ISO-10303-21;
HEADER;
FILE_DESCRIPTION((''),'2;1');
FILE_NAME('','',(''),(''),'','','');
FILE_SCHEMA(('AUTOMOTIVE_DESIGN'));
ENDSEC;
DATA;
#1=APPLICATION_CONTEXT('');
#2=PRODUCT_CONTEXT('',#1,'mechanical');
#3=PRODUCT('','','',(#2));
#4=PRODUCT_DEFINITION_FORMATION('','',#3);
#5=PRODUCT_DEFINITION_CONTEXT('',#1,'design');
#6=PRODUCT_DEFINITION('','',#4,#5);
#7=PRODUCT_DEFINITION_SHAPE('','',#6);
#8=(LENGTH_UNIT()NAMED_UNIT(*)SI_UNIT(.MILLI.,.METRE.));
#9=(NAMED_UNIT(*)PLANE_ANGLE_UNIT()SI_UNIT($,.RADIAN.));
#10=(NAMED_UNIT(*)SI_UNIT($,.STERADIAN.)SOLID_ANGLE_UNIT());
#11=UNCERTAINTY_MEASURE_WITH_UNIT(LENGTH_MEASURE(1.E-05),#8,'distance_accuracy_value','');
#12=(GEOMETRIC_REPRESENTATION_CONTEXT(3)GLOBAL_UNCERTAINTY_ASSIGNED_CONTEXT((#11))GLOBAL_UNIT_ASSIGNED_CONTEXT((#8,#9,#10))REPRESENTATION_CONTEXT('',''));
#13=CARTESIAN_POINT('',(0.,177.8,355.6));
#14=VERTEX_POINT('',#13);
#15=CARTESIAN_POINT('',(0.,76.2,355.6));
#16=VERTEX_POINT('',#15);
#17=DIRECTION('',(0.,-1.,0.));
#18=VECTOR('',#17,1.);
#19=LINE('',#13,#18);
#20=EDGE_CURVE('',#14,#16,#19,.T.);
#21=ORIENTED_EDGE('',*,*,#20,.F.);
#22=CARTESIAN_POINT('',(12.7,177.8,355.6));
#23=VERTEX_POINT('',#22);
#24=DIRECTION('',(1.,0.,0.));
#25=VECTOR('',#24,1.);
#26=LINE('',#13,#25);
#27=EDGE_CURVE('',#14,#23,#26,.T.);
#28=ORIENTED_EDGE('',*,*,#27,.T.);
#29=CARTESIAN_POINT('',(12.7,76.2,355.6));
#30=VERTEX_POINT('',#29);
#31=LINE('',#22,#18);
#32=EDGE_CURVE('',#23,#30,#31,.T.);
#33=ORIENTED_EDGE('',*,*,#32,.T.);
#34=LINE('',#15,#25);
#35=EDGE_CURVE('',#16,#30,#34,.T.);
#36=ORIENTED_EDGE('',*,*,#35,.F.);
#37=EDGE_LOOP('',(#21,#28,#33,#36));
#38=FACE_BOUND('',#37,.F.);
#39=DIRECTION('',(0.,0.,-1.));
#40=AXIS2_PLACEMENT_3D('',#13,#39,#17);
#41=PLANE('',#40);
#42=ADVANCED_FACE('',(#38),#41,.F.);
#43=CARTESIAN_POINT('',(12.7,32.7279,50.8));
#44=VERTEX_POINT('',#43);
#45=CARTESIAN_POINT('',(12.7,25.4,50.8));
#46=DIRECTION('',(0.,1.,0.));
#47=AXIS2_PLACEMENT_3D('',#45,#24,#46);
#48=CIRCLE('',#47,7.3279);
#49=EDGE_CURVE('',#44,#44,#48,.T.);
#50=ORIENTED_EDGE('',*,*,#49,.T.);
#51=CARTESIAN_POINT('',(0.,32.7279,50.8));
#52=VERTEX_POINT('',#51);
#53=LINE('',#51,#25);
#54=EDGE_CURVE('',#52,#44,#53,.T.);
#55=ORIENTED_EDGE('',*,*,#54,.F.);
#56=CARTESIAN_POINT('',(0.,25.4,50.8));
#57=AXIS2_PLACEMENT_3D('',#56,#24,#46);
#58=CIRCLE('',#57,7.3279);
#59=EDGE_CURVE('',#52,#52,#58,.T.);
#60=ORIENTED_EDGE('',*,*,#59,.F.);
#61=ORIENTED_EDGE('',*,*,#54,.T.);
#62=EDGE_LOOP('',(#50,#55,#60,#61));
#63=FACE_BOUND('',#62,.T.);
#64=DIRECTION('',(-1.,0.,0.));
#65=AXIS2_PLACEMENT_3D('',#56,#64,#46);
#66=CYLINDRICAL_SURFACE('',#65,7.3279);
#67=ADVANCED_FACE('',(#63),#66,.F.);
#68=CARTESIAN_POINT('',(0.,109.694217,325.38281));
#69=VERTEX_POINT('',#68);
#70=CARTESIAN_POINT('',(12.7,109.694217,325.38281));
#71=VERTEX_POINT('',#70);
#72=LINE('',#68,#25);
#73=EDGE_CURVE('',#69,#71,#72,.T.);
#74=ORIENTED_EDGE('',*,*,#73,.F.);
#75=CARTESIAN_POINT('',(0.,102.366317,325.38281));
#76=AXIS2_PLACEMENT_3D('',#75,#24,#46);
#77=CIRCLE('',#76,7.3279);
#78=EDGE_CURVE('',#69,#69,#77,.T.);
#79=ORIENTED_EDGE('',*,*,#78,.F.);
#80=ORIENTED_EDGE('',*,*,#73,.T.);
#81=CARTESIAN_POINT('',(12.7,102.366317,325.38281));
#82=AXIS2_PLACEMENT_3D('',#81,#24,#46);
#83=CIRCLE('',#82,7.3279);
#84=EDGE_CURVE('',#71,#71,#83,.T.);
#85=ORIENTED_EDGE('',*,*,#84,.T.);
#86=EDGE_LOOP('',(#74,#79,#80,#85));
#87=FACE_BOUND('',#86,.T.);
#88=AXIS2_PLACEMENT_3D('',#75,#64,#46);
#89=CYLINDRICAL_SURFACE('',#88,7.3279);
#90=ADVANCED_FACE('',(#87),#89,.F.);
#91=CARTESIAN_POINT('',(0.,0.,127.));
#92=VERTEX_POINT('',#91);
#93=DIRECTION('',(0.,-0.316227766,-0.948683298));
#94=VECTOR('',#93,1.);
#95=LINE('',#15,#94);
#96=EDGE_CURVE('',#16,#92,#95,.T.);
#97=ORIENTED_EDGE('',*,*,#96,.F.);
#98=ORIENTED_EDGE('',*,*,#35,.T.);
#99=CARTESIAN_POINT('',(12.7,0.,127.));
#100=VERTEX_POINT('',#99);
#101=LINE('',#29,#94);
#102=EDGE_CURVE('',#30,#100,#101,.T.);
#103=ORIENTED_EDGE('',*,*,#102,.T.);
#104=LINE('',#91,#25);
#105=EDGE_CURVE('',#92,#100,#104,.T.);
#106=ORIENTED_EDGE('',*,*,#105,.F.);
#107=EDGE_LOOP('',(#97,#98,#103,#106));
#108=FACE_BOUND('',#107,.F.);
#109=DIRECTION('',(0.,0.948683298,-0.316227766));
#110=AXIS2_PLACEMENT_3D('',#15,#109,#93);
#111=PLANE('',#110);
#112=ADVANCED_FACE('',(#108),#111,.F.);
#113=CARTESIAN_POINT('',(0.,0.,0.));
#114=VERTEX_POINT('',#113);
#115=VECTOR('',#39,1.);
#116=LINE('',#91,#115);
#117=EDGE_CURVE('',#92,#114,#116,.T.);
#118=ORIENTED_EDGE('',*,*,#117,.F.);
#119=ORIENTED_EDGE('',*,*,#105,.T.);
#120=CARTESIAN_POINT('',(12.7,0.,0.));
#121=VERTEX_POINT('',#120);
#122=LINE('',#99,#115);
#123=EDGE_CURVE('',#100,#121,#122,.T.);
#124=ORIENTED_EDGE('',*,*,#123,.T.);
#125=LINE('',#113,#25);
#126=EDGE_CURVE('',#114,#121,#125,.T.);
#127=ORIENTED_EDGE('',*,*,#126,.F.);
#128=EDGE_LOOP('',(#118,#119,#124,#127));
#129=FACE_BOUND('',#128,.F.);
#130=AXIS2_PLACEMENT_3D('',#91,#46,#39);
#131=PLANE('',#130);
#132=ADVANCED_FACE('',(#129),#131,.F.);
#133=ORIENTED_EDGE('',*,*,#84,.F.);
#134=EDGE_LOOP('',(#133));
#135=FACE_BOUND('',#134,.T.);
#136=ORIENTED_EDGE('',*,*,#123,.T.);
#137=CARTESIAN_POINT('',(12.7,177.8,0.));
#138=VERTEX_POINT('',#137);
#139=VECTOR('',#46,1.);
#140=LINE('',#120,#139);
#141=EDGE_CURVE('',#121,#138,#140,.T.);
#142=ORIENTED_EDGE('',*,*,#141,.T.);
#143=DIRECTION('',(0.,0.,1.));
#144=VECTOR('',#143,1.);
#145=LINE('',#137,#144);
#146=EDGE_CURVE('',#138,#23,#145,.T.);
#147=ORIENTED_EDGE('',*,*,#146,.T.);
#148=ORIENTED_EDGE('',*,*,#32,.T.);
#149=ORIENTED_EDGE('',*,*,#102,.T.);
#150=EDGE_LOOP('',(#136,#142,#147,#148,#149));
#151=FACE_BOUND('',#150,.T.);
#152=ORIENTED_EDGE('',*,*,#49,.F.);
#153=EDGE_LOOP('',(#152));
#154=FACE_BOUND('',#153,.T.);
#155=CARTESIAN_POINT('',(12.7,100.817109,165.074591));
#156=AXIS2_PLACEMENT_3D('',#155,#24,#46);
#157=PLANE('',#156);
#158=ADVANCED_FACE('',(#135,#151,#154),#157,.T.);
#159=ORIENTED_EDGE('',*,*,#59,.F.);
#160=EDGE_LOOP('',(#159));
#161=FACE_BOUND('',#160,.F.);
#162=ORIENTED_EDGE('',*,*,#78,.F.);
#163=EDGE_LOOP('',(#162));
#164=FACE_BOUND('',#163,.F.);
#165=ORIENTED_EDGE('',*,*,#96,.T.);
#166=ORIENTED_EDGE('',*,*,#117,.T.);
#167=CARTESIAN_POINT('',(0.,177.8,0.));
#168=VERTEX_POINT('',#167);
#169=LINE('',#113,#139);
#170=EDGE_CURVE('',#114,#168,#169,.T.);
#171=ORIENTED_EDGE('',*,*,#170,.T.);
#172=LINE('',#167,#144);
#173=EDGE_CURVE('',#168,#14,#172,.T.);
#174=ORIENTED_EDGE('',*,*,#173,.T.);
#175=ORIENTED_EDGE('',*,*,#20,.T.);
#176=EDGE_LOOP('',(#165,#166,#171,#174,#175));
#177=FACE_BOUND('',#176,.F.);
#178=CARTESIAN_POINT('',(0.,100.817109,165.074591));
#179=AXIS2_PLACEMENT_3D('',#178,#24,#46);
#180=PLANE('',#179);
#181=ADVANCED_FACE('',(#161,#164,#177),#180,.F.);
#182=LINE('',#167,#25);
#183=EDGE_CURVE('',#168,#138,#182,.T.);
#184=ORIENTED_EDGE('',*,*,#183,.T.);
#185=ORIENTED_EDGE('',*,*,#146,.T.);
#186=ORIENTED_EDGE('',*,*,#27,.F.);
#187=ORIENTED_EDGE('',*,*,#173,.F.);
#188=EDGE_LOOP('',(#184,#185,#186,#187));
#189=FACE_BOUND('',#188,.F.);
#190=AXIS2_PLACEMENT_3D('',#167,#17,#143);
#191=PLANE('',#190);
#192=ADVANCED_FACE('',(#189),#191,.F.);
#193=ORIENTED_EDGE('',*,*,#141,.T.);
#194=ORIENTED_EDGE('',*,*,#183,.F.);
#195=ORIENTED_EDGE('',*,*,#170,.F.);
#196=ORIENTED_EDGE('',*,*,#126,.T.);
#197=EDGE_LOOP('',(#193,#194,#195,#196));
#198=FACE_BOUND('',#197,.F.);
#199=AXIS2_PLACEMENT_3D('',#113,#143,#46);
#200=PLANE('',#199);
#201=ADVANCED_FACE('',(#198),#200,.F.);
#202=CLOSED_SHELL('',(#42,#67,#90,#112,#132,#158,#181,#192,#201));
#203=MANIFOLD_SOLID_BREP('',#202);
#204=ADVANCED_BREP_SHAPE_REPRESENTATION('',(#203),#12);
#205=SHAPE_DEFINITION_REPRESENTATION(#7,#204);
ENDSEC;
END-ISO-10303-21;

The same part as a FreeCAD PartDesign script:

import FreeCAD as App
import Part
import Sketcher
Q = App.Units.Quantity


def add_polygon(sketch, points):
    """Adds a closed chain of lines whose ends are joined by coincident constraints."""
    first, n = sketch.GeometryCount, len(points)
    for a, b in zip(points, points[1:] + points[:1]):
        sketch.addGeometry(Part.LineSegment(App.Vector(*a, 0), App.Vector(*b, 0)), False)
    for i in range(n):
        sketch.addConstraint(Sketcher.Constraint("Coincident", first + i, 2, first + (i + 1) % n, 1))

doc = App.newDocument("Part")
body = doc.addObject("PartDesign::Body", "Body")

# Sketch on YZ plane
sketch1 = body.newObject("Sketcher::SketchObject", "Sketch")
sketch1.AttachmentSupport = (doc.getObject("YZ_Plane"), [""])
sketch1.MapMode = "FlatFace"
add_polygon(sketch1, [(0, 127), (0, 0), (178, 0), (178, 356), (76, 356)])  # lines 0-4
sketch1.addGeometry(Part.Circle(App.Vector(25, 51, 0), App.Vector(0, 0, 1), 7), False)  # 5
sketch1.addGeometry(Part.Circle(App.Vector(102, 325, 0), App.Vector(0, 0, 1), 7), False)  # 6
sketch1.addConstraint([
    Sketcher.Constraint("Vertical", 0),
    Sketcher.Constraint("Horizontal", 1),
    Sketcher.Constraint("Vertical", 2),
    Sketcher.Constraint("Horizontal", 3),
    Sketcher.Constraint("Coincident", 0, 2, -1, 1),
    Sketcher.Constraint("Equal", 5, 6),
    Sketcher.Constraint("DistanceX", 1, 1, 1, 2, Q("7 in")),
    Sketcher.Constraint("DistanceX", 3, 2, 3, 1, Q("4 in")),
    Sketcher.Constraint("DistanceY", 0, 2, 0, 1, Q("5 in")),
    Sketcher.Constraint("DistanceY", 2, 1, 2, 2, Q("14 in")),
    Sketcher.Constraint("Diameter", 5, Q("0.577 in")),
    Sketcher.Constraint("DistanceX", -1, 1, 5, 3, Q("1 in")),
    Sketcher.Constraint("DistanceY", -1, 1, 5, 3, Q("2 in")),
    Sketcher.Constraint("DistanceY", -1, 1, 6, 3, Q("325.38281 mm")),
    Sketcher.Constraint("DistanceX", -1, 1, 6, 3, Q("102.366317 mm")),
])
pad1 = body.newObject("PartDesign::Pad", "Pad")
pad1.Profile = sketch1
pad1.Length = Q("0.5 in")

doc.recompute()
